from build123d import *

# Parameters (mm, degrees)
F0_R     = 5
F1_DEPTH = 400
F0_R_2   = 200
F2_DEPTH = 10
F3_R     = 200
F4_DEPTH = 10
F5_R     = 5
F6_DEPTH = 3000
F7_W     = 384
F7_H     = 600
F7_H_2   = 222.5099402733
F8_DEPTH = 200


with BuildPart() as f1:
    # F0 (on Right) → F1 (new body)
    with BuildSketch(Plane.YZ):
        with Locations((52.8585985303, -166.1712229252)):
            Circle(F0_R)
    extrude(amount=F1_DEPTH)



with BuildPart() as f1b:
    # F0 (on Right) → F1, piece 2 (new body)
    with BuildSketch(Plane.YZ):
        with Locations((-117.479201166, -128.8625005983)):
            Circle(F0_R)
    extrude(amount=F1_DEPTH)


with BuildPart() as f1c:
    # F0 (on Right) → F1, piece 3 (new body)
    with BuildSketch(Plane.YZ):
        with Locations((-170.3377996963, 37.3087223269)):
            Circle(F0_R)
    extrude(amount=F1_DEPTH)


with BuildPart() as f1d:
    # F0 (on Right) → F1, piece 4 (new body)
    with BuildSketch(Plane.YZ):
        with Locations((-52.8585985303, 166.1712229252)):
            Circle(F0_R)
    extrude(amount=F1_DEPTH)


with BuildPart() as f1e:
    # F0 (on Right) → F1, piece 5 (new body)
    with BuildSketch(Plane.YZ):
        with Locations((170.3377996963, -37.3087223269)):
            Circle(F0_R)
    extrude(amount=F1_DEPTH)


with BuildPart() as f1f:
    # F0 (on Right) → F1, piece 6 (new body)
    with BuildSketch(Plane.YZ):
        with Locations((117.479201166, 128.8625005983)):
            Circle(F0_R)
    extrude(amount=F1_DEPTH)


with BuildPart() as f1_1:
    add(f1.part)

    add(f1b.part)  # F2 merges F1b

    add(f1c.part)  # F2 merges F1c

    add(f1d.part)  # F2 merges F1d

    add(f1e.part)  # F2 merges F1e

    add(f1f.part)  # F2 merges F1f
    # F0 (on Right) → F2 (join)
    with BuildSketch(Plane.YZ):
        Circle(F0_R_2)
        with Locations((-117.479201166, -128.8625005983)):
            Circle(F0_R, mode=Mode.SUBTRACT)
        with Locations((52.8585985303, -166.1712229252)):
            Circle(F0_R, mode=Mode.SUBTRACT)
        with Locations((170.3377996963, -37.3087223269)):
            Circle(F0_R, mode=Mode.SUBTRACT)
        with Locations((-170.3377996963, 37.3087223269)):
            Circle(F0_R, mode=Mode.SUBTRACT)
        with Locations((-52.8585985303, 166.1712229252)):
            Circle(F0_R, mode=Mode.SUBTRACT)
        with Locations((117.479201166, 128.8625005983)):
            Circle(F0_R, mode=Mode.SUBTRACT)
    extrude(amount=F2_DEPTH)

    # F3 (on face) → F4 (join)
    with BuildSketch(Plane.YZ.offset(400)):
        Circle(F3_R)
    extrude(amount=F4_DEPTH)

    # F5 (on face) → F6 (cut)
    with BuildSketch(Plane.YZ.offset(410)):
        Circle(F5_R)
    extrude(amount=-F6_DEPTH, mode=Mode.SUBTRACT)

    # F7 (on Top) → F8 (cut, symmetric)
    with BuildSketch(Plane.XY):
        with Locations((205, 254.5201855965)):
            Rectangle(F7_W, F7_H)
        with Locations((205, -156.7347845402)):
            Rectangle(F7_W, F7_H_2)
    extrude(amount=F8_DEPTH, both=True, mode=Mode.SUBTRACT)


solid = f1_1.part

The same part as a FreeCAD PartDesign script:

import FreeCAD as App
import Part
import Sketcher


def add_polygon(sketch, points):
    """Adds a closed chain of lines whose ends are joined by coincident constraints."""
    first, n = sketch.GeometryCount, len(points)
    for a, b in zip(points, points[1:] + points[:1]):
        sketch.addGeometry(Part.LineSegment(App.Vector(*a, 0), App.Vector(*b, 0)), False)
    for i in range(n):
        sketch.addConstraint(Sketcher.Constraint("Coincident", first + i, 2, first + (i + 1) % n, 1))

doc = App.newDocument("Part")
body = doc.addObject("PartDesign::Body", "Body")

# Sketch on YZ plane
sketch1 = body.newObject("Sketcher::SketchObject", "Sketch")
sketch1.AttachmentSupport = (doc.getObject("YZ_Plane"), [""])
sketch1.MapMode = "FlatFace"
sketch1.addGeometry(Part.Circle(App.Vector(53, -166, 0), App.Vector(0, 0, 1), 5), False)
sketch1.addConstraint([
    Sketcher.Constraint("Diameter", 0, 10.0),
    Sketcher.Constraint("DistanceX", -1, 1, 0, 3, 52.858599),
    Sketcher.Constraint("DistanceY", 0, 3, -1, 1, 166.171223),
])
pad1 = body.newObject("PartDesign::Pad", "Pad")
pad1.Profile = sketch1
pad1.Length = 400
body2 = doc.addObject("PartDesign::Body", "Body001")

# Sketch on YZ plane
sketch2 = body2.newObject("Sketcher::SketchObject", "Sketch001")
sketch2.AttachmentSupport = (doc.getObject("YZ_Plane001"), [""])
sketch2.MapMode = "FlatFace"
sketch2.addGeometry(Part.Circle(App.Vector(-117, -129, 0), App.Vector(0, 0, 1), 5), False)
sketch2.addConstraint([
    Sketcher.Constraint("Diameter", 0, 10.0),
    Sketcher.Constraint("DistanceX", 0, 3, -1, 1, 117.479201),
    Sketcher.Constraint("DistanceY", 0, 3, -1, 1, 128.862501),
])
pad2 = body2.newObject("PartDesign::Pad", "Pad001")
pad2.Profile = sketch2
pad2.Length = 400
body3 = doc.addObject("PartDesign::Body", "Body002")

# Sketch on YZ plane
sketch3 = body3.newObject("Sketcher::SketchObject", "Sketch002")
sketch3.AttachmentSupport = (doc.getObject("YZ_Plane002"), [""])
sketch3.MapMode = "FlatFace"
sketch3.addGeometry(Part.Circle(App.Vector(-170, 37, 0), App.Vector(0, 0, 1), 5), False)
sketch3.addConstraint([
    Sketcher.Constraint("Diameter", 0, 10.0),
    Sketcher.Constraint("DistanceX", 0, 3, -1, 1, 170.3378),
    Sketcher.Constraint("DistanceY", -1, 1, 0, 3, 37.308722),
])
pad3 = body3.newObject("PartDesign::Pad", "Pad002")
pad3.Profile = sketch3
pad3.Length = 400
body4 = doc.addObject("PartDesign::Body", "Body003")

# Sketch on YZ plane
sketch4 = body4.newObject("Sketcher::SketchObject", "Sketch003")
sketch4.AttachmentSupport = (doc.getObject("YZ_Plane003"), [""])
sketch4.MapMode = "FlatFace"
sketch4.addGeometry(Part.Circle(App.Vector(-53, 166, 0), App.Vector(0, 0, 1), 5), False)
sketch4.addConstraint([
    Sketcher.Constraint("Diameter", 0, 10.0),
    Sketcher.Constraint("DistanceX", 0, 3, -1, 1, 52.858599),
    Sketcher.Constraint("DistanceY", -1, 1, 0, 3, 166.171223),
])
pad4 = body4.newObject("PartDesign::Pad", "Pad003")
pad4.Profile = sketch4
pad4.Length = 400
body5 = doc.addObject("PartDesign::Body", "Body004")

# Sketch on YZ plane
sketch5 = body5.newObject("Sketcher::SketchObject", "Sketch004")
sketch5.AttachmentSupport = (doc.getObject("YZ_Plane004"), [""])
sketch5.MapMode = "FlatFace"
sketch5.addGeometry(Part.Circle(App.Vector(170, -37, 0), App.Vector(0, 0, 1), 5), False)
sketch5.addConstraint([
    Sketcher.Constraint("Diameter", 0, 10.0),
    Sketcher.Constraint("DistanceX", -1, 1, 0, 3, 170.3378),
    Sketcher.Constraint("DistanceY", 0, 3, -1, 1, 37.308722),
])
pad5 = body5.newObject("PartDesign::Pad", "Pad004")
pad5.Profile = sketch5
pad5.Length = 400
body6 = doc.addObject("PartDesign::Body", "Body005")

# Sketch on YZ plane
sketch6 = body6.newObject("Sketcher::SketchObject", "Sketch005")
sketch6.AttachmentSupport = (doc.getObject("YZ_Plane005"), [""])
sketch6.MapMode = "FlatFace"
sketch6.addGeometry(Part.Circle(App.Vector(117, 129, 0), App.Vector(0, 0, 1), 5), False)
sketch6.addConstraint([
    Sketcher.Constraint("Diameter", 0, 10.0),
    Sketcher.Constraint("DistanceX", -1, 1, 0, 3, 117.479201),
    Sketcher.Constraint("DistanceY", -1, 1, 0, 3, 128.862501),
])
pad6 = body6.newObject("PartDesign::Pad", "Pad005")
pad6.Profile = sketch6
pad6.Length = 400
body.AllowCompound = True
doc.recompute()

boolean = body.newObject("PartDesign::Boolean", "Boolean")
boolean.Type = "Fuse"
boolean.addObjects([body2])
doc.recompute()

boolean2 = body.newObject("PartDesign::Boolean", "Boolean001")
boolean2.Type = "Fuse"
boolean2.addObjects([body3])
doc.recompute()

boolean3 = body.newObject("PartDesign::Boolean", "Boolean002")
boolean3.Type = "Fuse"
boolean3.addObjects([body4])
doc.recompute()

boolean4 = body.newObject("PartDesign::Boolean", "Boolean003")
boolean4.Type = "Fuse"
boolean4.addObjects([body5])
doc.recompute()

boolean5 = body.newObject("PartDesign::Boolean", "Boolean004")
boolean5.Type = "Fuse"
boolean5.addObjects([body6])

# Sketch on YZ plane
sketch7 = body.newObject("Sketcher::SketchObject", "Sketch006")
sketch7.AttachmentSupport = (doc.getObject("YZ_Plane"), [""])
sketch7.MapMode = "FlatFace"
sketch7.addGeometry([
    Part.Circle(App.Vector(0, 0, 0), App.Vector(0, 0, 1), 200),  # 0
    Part.Circle(App.Vector(-117, -129, 0), App.Vector(0, 0, 1), 5),  # 1
    Part.Circle(App.Vector(53, -166, 0), App.Vector(0, 0, 1), 5),  # 2
    Part.Circle(App.Vector(170, -37, 0), App.Vector(0, 0, 1), 5),  # 3
    Part.Circle(App.Vector(-170, 37, 0), App.Vector(0, 0, 1), 5),  # 4
    Part.Circle(App.Vector(-53, 166, 0), App.Vector(0, 0, 1), 5),  # 5
    Part.Circle(App.Vector(117, 129, 0), App.Vector(0, 0, 1), 5),  # 6
], False)
sketch7.addConstraint([
    Sketcher.Constraint("Coincident", 0, 3, -1, 1),
    Sketcher.Constraint("Equal", 1, 2),
    Sketcher.Constraint("Equal", 2, 3),
    Sketcher.Constraint("Equal", 3, 4),
    Sketcher.Constraint("Equal", 4, 5),
    Sketcher.Constraint("Equal", 5, 6),
    Sketcher.Constraint("Symmetric", 3, 3, 4, 3, -1, 1),
    Sketcher.Constraint("Symmetric", 2, 3, 5, 3, -1, 1),
    Sketcher.Constraint("Symmetric", 1, 3, 6, 3, -1, 1),
    Sketcher.Constraint("Diameter", 0, 400.0),
    Sketcher.Constraint("Diameter", 1, 10.0),
    Sketcher.Constraint("DistanceX", 1, 3, 3, 3, 287.817001),
    Sketcher.Constraint("DistanceX", 1, 3, -1, 1, 117.479201),
    Sketcher.Constraint("DistanceY", 1, 3, -1, 1, 128.862501),
    Sketcher.Constraint("DistanceX", -1, 1, 2, 3, 52.858599),
    Sketcher.Constraint("DistanceY", 2, 3, 3, 3, 128.862501),
    Sketcher.Constraint("DistanceY", 1, 3, 3, 3, 91.553778),
])
pad7 = body.newObject("PartDesign::Pad", "Pad006")
pad7.Profile = sketch7
pad7.Length = 10

# Sketch on YZ plane
sketch8 = body.newObject("Sketcher::SketchObject", "Sketch007")
sketch8.AttachmentSupport = (doc.getObject("YZ_Plane"), [""])
sketch8.MapMode = "FlatFace"
sketch8.AttachmentOffset = App.Placement(App.Vector(0, 0, 400), App.Rotation())
sketch8.addGeometry(Part.Circle(App.Vector(0, 0, 0), App.Vector(0, 0, 1), 200), False)
sketch8.addConstraint([
    Sketcher.Constraint("Coincident", 0, 3, -1, 1),
    Sketcher.Constraint("Diameter", 0, 400.0),
])
pad8 = body.newObject("PartDesign::Pad", "Pad007")
pad8.Profile = sketch8
pad8.Length = 10

# Sketch on YZ plane
sketch9 = body.newObject("Sketcher::SketchObject", "Sketch008")
sketch9.AttachmentSupport = (doc.getObject("YZ_Plane"), [""])
sketch9.MapMode = "FlatFace"
sketch9.AttachmentOffset = App.Placement(App.Vector(0, 0, 410), App.Rotation())
sketch9.addGeometry(Part.Circle(App.Vector(0, 0, 0), App.Vector(0, 0, 1), 5), False)
sketch9.addConstraint([
    Sketcher.Constraint("Coincident", 0, 3, -1, 1),
    Sketcher.Constraint("Diameter", 0, 10.0),
])
pocket1 = body.newObject("PartDesign::Pocket", "Pocket")
pocket1.Profile = sketch9
pocket1.Length = 3000

# Sketch on XY plane
sketch10 = body.newObject("Sketcher::SketchObject", "Sketch009")
sketch10.AttachmentSupport = (doc.getObject("XY_Plane"), [""])
sketch10.MapMode = "FlatFace"
add_polygon(sketch10, [(13, 555), (13, -268), (397, -268), (397, 555)])  # lines 0-3
sketch10.addConstraint([
    Sketcher.Constraint("Vertical", 0),
    Sketcher.Constraint("Horizontal", 1),
    Sketcher.Constraint("Vertical", 2),
    Sketcher.Constraint("Horizontal", 3),
    Sketcher.Constraint("DistanceX", 1, 1, 1, 2, 384.0),
    Sketcher.Constraint("DistanceX", -1, 1, 0, 2, 13.0),
    Sketcher.Constraint("DistanceY", 0, 2, 0, 1, 822.50994),
    Sketcher.Constraint("DistanceY", 0, 2, -1, 1, 267.989755),
])
pocket2 = body.newObject("PartDesign::Pocket", "Pocket001")
pocket2.Profile = sketch10
pocket2.Length = 400
pocket2.Midplane = True

doc.recompute()
